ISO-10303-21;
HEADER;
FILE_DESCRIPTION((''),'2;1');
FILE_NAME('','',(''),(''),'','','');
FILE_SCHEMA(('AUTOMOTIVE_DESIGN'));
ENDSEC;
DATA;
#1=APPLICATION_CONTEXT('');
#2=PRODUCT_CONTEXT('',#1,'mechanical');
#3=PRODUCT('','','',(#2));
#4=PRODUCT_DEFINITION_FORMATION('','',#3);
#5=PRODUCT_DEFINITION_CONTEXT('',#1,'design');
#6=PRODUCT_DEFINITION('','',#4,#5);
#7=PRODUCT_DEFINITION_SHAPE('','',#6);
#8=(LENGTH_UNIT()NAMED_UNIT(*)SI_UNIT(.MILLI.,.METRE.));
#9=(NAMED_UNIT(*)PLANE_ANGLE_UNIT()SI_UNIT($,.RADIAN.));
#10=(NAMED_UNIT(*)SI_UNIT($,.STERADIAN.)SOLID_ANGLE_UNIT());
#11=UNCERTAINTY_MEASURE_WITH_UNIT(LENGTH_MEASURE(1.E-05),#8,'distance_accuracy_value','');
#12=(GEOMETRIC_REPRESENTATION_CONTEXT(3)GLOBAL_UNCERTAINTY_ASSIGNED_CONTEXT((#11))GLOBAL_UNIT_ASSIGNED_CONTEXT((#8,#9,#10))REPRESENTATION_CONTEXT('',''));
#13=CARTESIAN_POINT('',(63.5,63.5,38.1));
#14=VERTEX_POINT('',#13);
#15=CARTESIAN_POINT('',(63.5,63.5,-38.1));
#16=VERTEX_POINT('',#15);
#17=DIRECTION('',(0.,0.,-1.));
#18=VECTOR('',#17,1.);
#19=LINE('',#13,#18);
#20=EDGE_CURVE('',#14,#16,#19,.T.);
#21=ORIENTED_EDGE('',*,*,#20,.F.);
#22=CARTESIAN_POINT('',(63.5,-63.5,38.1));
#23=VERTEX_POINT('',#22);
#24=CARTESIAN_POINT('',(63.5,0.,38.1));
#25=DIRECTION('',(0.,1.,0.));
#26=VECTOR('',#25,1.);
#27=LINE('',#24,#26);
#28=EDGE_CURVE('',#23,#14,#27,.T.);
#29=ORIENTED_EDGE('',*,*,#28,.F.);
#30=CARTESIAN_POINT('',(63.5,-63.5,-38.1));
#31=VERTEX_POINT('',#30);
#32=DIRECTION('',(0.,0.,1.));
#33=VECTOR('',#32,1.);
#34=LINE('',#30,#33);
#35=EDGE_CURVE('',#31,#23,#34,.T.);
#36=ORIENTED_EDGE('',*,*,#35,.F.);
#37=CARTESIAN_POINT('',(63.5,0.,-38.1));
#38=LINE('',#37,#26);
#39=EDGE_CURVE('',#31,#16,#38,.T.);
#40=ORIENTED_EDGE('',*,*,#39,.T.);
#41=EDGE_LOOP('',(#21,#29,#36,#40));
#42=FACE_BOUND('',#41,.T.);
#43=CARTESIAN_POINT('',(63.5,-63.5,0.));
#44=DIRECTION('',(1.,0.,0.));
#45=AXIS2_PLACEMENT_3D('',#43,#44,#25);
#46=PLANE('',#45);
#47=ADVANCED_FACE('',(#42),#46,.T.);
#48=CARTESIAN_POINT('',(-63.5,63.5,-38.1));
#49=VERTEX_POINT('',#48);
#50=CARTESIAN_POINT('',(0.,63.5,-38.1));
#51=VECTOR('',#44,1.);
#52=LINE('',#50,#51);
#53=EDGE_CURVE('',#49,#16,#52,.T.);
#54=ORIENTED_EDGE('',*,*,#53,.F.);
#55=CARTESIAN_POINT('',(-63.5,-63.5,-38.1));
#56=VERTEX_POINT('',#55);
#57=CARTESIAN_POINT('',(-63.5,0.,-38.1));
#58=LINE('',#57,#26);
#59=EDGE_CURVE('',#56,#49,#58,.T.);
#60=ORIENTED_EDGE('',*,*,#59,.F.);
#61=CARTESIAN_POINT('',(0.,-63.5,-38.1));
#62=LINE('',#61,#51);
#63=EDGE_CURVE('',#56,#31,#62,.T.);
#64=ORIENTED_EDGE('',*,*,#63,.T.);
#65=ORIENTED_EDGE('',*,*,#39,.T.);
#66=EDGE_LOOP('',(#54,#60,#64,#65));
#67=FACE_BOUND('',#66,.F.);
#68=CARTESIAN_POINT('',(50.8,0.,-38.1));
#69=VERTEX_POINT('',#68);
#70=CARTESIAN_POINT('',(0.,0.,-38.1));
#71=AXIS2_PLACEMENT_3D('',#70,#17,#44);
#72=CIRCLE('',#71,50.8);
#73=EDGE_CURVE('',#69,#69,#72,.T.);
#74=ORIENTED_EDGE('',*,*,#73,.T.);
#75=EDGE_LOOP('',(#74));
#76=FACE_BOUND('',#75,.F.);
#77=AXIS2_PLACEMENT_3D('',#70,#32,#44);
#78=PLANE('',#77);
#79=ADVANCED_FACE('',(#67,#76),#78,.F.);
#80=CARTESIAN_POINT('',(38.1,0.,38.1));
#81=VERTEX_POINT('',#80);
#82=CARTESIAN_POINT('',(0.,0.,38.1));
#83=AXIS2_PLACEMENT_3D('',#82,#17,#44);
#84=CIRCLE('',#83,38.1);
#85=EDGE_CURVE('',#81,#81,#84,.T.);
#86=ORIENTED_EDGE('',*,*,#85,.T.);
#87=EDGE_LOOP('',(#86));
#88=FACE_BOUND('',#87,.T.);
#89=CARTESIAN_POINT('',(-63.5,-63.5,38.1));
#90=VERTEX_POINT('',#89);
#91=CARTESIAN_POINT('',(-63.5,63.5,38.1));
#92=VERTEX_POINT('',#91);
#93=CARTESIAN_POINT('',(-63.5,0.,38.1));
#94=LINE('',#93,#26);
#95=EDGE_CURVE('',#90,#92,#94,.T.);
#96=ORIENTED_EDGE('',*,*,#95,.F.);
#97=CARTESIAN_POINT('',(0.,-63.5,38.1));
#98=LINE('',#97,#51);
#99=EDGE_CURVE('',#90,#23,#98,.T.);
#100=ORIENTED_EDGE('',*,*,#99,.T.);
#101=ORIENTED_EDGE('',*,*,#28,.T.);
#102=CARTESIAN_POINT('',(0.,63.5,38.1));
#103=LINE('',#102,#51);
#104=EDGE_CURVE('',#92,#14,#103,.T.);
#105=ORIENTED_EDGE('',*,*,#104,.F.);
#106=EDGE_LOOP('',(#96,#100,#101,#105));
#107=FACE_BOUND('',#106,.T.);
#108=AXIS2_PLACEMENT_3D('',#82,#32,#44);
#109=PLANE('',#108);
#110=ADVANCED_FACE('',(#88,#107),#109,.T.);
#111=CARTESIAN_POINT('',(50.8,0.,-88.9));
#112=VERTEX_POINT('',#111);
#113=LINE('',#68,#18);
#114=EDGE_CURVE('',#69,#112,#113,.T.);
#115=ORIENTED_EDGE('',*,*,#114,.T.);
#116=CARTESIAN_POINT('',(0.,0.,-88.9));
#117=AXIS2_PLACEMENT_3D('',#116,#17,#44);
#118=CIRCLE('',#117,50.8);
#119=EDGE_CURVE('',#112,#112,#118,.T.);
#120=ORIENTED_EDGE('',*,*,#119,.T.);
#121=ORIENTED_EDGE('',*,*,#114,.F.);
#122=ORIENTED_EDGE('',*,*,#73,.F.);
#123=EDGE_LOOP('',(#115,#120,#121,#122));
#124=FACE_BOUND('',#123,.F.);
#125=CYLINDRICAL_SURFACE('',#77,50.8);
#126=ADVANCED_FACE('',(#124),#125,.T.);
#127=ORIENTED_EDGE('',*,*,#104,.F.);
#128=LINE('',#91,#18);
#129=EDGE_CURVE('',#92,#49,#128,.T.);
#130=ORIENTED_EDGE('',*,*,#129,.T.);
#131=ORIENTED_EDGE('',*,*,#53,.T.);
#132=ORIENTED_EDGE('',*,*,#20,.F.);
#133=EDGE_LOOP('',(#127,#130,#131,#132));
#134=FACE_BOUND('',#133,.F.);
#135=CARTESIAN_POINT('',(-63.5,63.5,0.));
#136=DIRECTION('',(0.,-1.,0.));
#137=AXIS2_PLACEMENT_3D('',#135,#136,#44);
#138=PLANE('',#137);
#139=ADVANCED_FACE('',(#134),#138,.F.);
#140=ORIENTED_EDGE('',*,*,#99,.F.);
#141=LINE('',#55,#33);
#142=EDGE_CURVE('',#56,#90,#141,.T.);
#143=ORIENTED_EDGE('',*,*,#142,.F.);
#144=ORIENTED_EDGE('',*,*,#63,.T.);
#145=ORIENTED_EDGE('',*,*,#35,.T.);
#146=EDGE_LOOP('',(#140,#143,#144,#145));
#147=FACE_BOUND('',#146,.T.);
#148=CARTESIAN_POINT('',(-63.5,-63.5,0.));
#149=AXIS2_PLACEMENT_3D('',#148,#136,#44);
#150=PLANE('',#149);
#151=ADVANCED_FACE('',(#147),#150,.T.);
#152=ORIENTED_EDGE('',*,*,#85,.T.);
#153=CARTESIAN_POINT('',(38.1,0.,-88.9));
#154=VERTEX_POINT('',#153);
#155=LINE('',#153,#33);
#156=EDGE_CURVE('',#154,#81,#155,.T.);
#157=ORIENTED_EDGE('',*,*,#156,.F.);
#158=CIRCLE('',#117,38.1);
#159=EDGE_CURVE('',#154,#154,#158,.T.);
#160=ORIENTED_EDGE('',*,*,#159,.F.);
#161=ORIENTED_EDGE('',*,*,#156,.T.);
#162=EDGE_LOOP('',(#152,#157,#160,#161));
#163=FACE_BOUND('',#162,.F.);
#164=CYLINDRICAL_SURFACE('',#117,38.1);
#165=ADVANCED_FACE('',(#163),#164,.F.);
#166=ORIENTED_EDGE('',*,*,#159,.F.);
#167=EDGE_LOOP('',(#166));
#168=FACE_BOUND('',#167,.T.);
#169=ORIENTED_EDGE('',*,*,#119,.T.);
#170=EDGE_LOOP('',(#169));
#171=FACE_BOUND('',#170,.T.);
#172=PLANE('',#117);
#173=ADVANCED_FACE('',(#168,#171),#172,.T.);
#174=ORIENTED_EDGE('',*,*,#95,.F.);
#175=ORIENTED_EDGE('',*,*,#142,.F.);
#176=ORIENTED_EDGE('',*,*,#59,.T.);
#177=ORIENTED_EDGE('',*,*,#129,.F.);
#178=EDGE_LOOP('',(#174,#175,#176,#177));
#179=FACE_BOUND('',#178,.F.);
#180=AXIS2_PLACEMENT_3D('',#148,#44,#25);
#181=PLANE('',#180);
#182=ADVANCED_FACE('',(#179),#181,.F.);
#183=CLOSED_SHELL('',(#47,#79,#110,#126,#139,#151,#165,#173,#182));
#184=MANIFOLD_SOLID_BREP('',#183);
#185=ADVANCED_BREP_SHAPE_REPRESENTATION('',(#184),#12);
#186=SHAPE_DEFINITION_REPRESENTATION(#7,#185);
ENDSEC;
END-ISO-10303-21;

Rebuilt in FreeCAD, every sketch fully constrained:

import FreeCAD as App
import Part
import Sketcher
Q = App.Units.Quantity


def add_polygon(sketch, points):
    """Adds a closed chain of lines whose ends are joined by coincident constraints."""
    first, n = sketch.GeometryCount, len(points)
    for a, b in zip(points, points[1:] + points[:1]):
        sketch.addGeometry(Part.LineSegment(App.Vector(*a, 0), App.Vector(*b, 0)), False)
    for i in range(n):
        sketch.addConstraint(Sketcher.Constraint("Coincident", first + i, 2, first + (i + 1) % n, 1))

doc = App.newDocument("Part")
body = doc.addObject("PartDesign::Body", "Body")

sketch1 = body.newObject("Sketcher::SketchObject", "Sketch")
sketch1.AttachmentSupport = (doc.getObject("XY_Plane"), [""])
sketch1.MapMode = "FlatFace"
add_polygon(sketch1, [(-63.5, 63.5), (-63.5, -63.5), (63.5, -63.5), (63.5, 63.5)])
sketch1.addConstraint([
    Sketcher.Constraint("Vertical", 0),
    Sketcher.Constraint("Horizontal", 1),
    Sketcher.Constraint("Vertical", 2),
    Sketcher.Constraint("Horizontal", 3),
    Sketcher.Constraint("Symmetric", 0, 2, 2, 2, -1, 1),
    Sketcher.Constraint("Equal", 3, 0),
    Sketcher.Constraint("DistanceX", 1, 1, 1, 2, Q("5 in")),
])
pad1 = body.newObject("PartDesign::Pad", "Pad")
pad1.Profile = sketch1
pad1.Length = Q("3 in")
pad1.Midplane = True

sketch2 = body.newObject("Sketcher::SketchObject", "Sketch001")
sketch2.AttachmentSupport = (doc.getObject("XY_Plane"), [""])
sketch2.MapMode = "FlatFace"
sketch2.AttachmentOffset = App.Placement(App.Vector(0, 0, -1.5 * 25.4), App.Rotation())
sketch2.addGeometry(Part.Circle(App.Vector(0, 0, 0), App.Vector(0, 0, 1), 50.8), False)
sketch2.addConstraint([
    Sketcher.Constraint("Coincident", 0, 3, -1, 1),
    Sketcher.Constraint("Diameter", 0, Q("4 in")),
])
pad2 = body.newObject("PartDesign::Pad", "Pad001")
pad2.Profile = sketch2
pad2.Length = Q("2 in")
pad2.Reversed = True

sketch3 = body.newObject("Sketcher::SketchObject", "Sketch002")
sketch3.AttachmentSupport = (doc.getObject("XY_Plane"), [""])
sketch3.MapMode = "FlatFace"
sketch3.AttachmentOffset = App.Placement(App.Vector(0, 0, -3.5 * 25.4), App.Rotation())
sketch3.addGeometry(Part.Circle(App.Vector(0, 0, 0), App.Vector(0, 0, 1), 38.1), False)
sketch3.addConstraint([
    Sketcher.Constraint("Coincident", 0, 3, -1, 1),
    Sketcher.Constraint("Diameter", 0, Q("3 in")),
])
pocket1 = body.newObject("PartDesign::Pocket", "Pocket")
pocket1.Profile = sketch3
pocket1.Type = "ThroughAll"
pocket1.Reversed = True

doc.recompute()
